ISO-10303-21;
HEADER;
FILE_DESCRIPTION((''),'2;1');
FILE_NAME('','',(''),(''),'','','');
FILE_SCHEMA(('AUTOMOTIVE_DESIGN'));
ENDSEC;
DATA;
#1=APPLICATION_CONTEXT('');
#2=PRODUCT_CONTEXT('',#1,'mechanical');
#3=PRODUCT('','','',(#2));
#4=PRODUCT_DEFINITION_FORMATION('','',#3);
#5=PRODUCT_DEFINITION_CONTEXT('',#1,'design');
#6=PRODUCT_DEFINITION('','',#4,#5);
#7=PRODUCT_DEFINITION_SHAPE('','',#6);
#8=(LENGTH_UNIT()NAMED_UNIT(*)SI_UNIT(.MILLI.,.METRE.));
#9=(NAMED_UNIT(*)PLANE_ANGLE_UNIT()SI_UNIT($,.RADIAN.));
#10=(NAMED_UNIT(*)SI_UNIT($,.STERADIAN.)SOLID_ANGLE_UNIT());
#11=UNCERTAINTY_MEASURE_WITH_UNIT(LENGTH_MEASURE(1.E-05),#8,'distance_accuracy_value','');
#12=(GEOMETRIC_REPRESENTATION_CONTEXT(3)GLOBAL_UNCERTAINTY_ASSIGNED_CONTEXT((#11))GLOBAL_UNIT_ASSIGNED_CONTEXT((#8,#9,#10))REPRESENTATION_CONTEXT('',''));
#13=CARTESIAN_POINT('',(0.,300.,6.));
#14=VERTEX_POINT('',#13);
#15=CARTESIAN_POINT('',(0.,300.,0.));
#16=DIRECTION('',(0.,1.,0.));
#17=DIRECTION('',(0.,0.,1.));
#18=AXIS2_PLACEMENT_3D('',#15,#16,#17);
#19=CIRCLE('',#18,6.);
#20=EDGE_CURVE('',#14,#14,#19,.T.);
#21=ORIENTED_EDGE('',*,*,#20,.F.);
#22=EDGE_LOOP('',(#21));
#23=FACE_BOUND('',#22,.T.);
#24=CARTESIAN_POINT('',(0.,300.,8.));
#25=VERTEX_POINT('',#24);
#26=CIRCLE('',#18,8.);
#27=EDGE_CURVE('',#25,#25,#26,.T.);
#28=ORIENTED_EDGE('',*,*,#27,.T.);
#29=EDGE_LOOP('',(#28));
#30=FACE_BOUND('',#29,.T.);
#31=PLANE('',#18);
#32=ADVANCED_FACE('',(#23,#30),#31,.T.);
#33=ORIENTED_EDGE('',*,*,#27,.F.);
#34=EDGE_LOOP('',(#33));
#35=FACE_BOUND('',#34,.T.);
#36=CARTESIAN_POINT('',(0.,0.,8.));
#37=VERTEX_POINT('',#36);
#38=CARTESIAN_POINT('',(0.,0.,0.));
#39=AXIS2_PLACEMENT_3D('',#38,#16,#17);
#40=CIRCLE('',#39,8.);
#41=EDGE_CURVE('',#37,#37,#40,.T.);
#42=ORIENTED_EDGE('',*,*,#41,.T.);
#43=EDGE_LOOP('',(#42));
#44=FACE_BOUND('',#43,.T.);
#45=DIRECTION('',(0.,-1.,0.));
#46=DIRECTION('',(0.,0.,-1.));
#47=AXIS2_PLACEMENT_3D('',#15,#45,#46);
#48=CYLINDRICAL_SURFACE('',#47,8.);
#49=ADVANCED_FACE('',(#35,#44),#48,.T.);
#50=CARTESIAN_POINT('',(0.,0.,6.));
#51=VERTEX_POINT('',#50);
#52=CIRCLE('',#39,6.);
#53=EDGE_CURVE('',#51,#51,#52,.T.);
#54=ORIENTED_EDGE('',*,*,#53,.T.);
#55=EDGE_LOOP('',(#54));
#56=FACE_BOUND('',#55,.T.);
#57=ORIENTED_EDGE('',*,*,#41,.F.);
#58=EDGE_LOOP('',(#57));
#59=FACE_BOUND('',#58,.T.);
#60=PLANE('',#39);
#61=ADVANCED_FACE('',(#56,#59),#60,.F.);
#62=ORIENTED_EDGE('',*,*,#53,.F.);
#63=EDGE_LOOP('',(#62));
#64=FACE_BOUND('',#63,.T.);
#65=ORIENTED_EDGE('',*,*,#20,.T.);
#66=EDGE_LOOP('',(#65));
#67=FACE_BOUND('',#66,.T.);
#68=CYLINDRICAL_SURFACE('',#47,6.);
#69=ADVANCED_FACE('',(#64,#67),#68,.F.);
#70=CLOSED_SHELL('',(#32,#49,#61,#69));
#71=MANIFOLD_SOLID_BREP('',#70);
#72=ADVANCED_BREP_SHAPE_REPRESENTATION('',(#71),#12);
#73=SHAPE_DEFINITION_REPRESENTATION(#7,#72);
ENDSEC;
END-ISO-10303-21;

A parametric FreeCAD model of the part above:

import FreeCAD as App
import Part
import Sketcher
from FreeCAD import Vector

doc = App.newDocument("Part")
body = doc.addObject("PartDesign::Body", "Body")

# Sketch on XZ plane
sketch1 = doc.addObject("Sketcher::SketchObject", "Sketch")
body.addObject(sketch1)
sketch1.AttachmentSupport = (doc.XZ_Plane, [""])
sketch1.MapMode = "FlatFace"
sketch1.addGeometry(Part.Circle(Vector(0, 0, 0), Vector(0, 0, 1), 8), False)
sketch1.addGeometry(Part.Circle(Vector(0, 0, 0), Vector(0, 0, 1), 6), False)
sketch1.addConstraint(Sketcher.Constraint("Coincident", 0, 3, -1, 1))
sketch1.addConstraint(Sketcher.Constraint("Coincident", 1, 3, -1, 1))
sketch1.addConstraint(Sketcher.Constraint("Diameter", 0, 16.0))
sketch1.addConstraint(Sketcher.Constraint("Diameter", 1, 12.0))
pad1 = doc.addObject("PartDesign::Pad", "Pad")
body.addObject(pad1)
pad1.Profile = sketch1
pad1.Length = 300
pad1.Reversed = True

doc.recompute()
